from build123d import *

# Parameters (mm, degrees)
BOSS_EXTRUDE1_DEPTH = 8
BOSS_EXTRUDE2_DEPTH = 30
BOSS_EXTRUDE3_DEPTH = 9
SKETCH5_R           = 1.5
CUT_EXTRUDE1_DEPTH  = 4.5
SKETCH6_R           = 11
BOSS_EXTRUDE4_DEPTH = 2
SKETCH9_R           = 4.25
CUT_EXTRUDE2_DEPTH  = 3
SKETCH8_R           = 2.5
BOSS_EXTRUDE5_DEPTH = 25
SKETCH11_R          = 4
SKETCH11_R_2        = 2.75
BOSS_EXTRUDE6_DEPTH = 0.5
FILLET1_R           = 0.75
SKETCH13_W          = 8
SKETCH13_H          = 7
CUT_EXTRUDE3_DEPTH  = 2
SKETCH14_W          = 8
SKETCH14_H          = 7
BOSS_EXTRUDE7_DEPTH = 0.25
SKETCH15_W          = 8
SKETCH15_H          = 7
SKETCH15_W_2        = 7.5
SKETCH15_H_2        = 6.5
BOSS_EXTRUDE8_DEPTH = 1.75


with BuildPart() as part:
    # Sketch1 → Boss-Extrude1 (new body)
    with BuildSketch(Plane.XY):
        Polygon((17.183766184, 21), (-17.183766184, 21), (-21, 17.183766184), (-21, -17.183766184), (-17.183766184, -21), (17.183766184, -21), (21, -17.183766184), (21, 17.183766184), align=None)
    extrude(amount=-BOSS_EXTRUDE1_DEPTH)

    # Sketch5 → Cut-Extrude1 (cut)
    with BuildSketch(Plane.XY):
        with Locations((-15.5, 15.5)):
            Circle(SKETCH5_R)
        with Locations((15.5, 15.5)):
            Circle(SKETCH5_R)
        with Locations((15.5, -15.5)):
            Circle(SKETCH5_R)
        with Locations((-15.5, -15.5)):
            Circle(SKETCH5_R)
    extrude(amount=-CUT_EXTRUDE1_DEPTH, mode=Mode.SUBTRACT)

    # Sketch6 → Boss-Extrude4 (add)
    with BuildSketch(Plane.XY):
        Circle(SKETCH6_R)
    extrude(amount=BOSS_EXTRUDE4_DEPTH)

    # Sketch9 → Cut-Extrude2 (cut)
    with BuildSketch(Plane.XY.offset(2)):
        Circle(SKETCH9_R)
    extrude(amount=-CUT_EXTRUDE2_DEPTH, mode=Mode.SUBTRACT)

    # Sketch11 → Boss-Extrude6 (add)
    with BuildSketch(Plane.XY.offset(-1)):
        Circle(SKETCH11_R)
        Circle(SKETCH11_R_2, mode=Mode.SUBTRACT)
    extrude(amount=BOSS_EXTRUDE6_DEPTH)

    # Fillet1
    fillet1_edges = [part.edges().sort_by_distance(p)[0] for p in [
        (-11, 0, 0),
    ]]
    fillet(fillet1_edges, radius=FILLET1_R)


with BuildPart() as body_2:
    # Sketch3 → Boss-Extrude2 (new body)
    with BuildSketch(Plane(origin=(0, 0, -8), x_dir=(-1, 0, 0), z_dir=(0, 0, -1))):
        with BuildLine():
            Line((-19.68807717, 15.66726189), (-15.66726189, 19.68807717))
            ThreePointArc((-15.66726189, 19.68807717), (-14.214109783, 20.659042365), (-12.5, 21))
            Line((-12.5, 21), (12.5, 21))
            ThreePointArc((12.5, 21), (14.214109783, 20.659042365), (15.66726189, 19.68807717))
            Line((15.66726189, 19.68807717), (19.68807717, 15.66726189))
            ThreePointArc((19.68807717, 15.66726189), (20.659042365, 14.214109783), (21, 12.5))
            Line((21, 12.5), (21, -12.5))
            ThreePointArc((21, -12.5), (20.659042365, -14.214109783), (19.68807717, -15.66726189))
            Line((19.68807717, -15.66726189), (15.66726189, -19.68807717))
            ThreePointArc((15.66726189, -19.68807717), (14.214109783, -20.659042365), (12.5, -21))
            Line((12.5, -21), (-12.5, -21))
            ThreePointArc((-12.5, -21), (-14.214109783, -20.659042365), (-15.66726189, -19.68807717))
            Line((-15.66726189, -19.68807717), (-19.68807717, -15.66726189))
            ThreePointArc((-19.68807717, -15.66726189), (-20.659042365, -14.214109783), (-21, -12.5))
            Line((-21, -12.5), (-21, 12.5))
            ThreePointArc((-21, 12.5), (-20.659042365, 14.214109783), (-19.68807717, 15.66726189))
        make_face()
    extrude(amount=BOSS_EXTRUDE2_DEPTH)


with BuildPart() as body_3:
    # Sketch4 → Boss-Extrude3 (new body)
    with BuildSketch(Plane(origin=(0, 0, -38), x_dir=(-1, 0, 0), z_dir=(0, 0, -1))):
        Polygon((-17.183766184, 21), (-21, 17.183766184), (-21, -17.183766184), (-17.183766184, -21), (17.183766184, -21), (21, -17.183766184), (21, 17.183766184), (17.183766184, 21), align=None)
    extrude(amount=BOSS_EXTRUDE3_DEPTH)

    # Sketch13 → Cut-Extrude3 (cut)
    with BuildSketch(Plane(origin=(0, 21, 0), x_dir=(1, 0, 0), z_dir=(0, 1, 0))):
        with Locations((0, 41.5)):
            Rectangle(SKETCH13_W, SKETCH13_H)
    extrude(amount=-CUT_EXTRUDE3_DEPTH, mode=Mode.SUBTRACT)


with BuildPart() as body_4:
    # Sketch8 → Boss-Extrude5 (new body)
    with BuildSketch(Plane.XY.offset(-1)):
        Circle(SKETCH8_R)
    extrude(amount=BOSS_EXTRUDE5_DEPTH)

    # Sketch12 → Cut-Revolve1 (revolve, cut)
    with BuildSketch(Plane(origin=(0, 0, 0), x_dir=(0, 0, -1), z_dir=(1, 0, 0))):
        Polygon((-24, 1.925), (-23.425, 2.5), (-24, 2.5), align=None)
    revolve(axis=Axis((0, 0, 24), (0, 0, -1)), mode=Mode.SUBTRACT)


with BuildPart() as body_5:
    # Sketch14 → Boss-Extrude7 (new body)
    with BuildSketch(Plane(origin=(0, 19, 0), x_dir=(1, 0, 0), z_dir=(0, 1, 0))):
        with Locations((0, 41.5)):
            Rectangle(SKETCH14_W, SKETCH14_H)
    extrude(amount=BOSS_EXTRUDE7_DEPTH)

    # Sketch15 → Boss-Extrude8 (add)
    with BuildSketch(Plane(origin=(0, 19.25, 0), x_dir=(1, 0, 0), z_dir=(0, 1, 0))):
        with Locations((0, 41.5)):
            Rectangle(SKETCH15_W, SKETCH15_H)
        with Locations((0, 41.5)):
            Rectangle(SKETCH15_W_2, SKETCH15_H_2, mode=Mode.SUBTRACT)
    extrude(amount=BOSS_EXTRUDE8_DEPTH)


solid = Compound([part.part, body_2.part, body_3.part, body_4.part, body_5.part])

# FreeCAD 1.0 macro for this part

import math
import FreeCAD as App
import Part
import Sketcher
from FreeCAD import Vector
Q = App.Units.Quantity


def edges_at(feature, points):
    """Names of the edges that pass closest to the given points."""
    edges = feature.Shape.Edges
    near = lambda p: min(range(len(edges)), key=lambda i: edges[i].distToShape(Part.Vertex(*p))[0])
    return sorted({f"Edge{near(p) + 1}" for p in points})

doc = App.newDocument("Part")
params = doc.addObject("Spreadsheet::Sheet", "Params")
for row, (alias, value) in enumerate([
    ("pad1_length", "8 mm"),
    ("sketch2_diameter", "3 mm"),
    ("pocket1_length", "4.5 mm"),
    ("sketch3_diameter", "22 mm"),
    ("pad2_length", "2 mm"),
    ("sketch4_diameter", "8.5 mm"),
    ("pocket2_length", "3 mm"),
    ("sketch5_diameter", "8 mm"),
    ("sketch5_diameter2", "5.5 mm"),
    ("pad3_length", "0.5 mm"),
    ("fillet_radius", "0.75 mm"),
    ("sketch6_width", "25 mm"),
    ("pad4_length", "30 mm"),
    ("pad5_length", "9 mm"),
    ("sketch8_width", "8 mm"),
    ("sketch8_height", "7 mm"),
    ("pocket3_length", "2 mm"),
    ("sketch9_diameter", "5 mm"),
    ("pad6_length", "25 mm"),
    ("groove_angle", "360 deg"),
    ("sketch11_width", "8 mm"),
    ("sketch11_height", "7 mm"),
    ("pad7_length", "0.25 mm"),
    ("sketch12_width", "8 mm"),
    ("sketch12_height", "7 mm"),
    ("sketch12_width2", "7.5 mm"),
    ("sketch12_height2", "6.5 mm"),
    ("pad8_length", "1.75 mm"),
], start=1):
    params.set(f"A{row}", alias)
    params.set(f"B{row}", "=" + value)
    params.setAlias(f"B{row}", alias)

body = doc.addObject("PartDesign::Body", "Body")

# Sketch on XY plane
sketch1 = doc.addObject("Sketcher::SketchObject", "Sketch")
body.addObject(sketch1)
sketch1.AttachmentSupport = (doc.XY_Plane, [""])
sketch1.MapMode = "FlatFace"
sketch1.addGeometry(Part.LineSegment(Vector(17, 21, 0), Vector(-17, 21, 0)), False)
sketch1.addGeometry(Part.LineSegment(Vector(-17, 21, 0), Vector(-21, 17, 0)), False)
sketch1.addGeometry(Part.LineSegment(Vector(-21, 17, 0), Vector(-21, -17, 0)), False)
sketch1.addGeometry(Part.LineSegment(Vector(-21, -17, 0), Vector(-17, -21, 0)), False)
sketch1.addGeometry(Part.LineSegment(Vector(-17, -21, 0), Vector(17, -21, 0)), False)
sketch1.addGeometry(Part.LineSegment(Vector(17, -21, 0), Vector(21, -17, 0)), False)
sketch1.addGeometry(Part.LineSegment(Vector(21, -17, 0), Vector(21, 17, 0)), False)
sketch1.addGeometry(Part.LineSegment(Vector(21, 17, 0), Vector(17, 21, 0)), False)
sketch1.addConstraint(Sketcher.Constraint("Coincident", 0, 2, 1, 1))
sketch1.addConstraint(Sketcher.Constraint("Coincident", 1, 2, 2, 1))
sketch1.addConstraint(Sketcher.Constraint("Coincident", 2, 2, 3, 1))
sketch1.addConstraint(Sketcher.Constraint("Coincident", 3, 2, 4, 1))
sketch1.addConstraint(Sketcher.Constraint("Coincident", 4, 2, 5, 1))
sketch1.addConstraint(Sketcher.Constraint("Coincident", 5, 2, 6, 1))
sketch1.addConstraint(Sketcher.Constraint("Coincident", 6, 2, 7, 1))
sketch1.addConstraint(Sketcher.Constraint("Coincident", 7, 2, 0, 1))
sketch1.addConstraint(Sketcher.Constraint("Horizontal", 0))
sketch1.addConstraint(Sketcher.Constraint("Vertical", 2))
sketch1.addConstraint(Sketcher.Constraint("Horizontal", 4))
sketch1.addConstraint(Sketcher.Constraint("Vertical", 6))
sketch1.addConstraint(Sketcher.Constraint("Symmetric", 0, 2, 4, 2, -1, 1))
sketch1.addConstraint(Sketcher.Constraint("Symmetric", 1, 2, 5, 2, -1, 1))
sketch1.addConstraint(Sketcher.Constraint("Perpendicular", 1, 3))
sketch1.addConstraint(Sketcher.Constraint("Perpendicular", 5, 7))
sketch1.addConstraint(Sketcher.Constraint("Horizontal", 2, 2, 5, 2))
sketch1.addConstraint(Sketcher.Constraint("Horizontal", 1, 2, 6, 2))
sketch1.addConstraint(Sketcher.Constraint("Vertical", 0, 2, 3, 2))
sketch1.addConstraint(Sketcher.Constraint("Equal", 4, 2))
sketch1.addConstraint(Sketcher.Constraint("DistanceY", -1, 1, 0, 2, Q("21 mm")))
sketch1.addConstraint(Sketcher.Constraint("Distance", 1, Q("5.39697 mm")))
pad1 = doc.addObject("PartDesign::Pad", "Pad")
body.addObject(pad1)
pad1.Profile = sketch1
pad1.setExpression("Length", "Params.pad1_length")
pad1.Reversed = True

# Sketch on XY plane
sketch2 = doc.addObject("Sketcher::SketchObject", "Sketch001")
body.addObject(sketch2)
sketch2.AttachmentSupport = (doc.XY_Plane, [""])
sketch2.MapMode = "FlatFace"
sketch2.addGeometry(Part.Circle(Vector(-15.5, 15.5, 0), Vector(0, 0, 1), 1.5), False)
sketch2.addGeometry(Part.Circle(Vector(15.5, 15.5, 0), Vector(0, 0, 1), 1.5), False)
sketch2.addGeometry(Part.Circle(Vector(15.5, -15.5, 0), Vector(0, 0, 1), 1.5), False)
sketch2.addGeometry(Part.Circle(Vector(-15.5, -15.5, 0), Vector(0, 0, 1), 1.5), False)
sketch2.addConstraint(Sketcher.Constraint("Equal", 0, 1))
sketch2.addConstraint(Sketcher.Constraint("Equal", 1, 2))
sketch2.addConstraint(Sketcher.Constraint("Equal", 2, 3))
sketch2.addConstraint(Sketcher.Constraint("Symmetric", 0, 3, 2, 3, -1, 1))
sketch2.addConstraint(Sketcher.Constraint("Symmetric", 1, 3, 3, 3, -1, 1))
sketch2.addConstraint(Sketcher.Constraint("Symmetric", 0, 3, 1, 3, -2))
sketch2.addConstraint(Sketcher.Constraint("Diameter", 0, Q("3 mm")))
sketch2.addConstraint(Sketcher.Constraint("DistanceX", 0, 3, 1, 3, Q("31 mm")))
sketch2.addConstraint(Sketcher.Constraint("DistanceY", 2, 3, 1, 3, Q("31 mm")))
sketch2.setExpression("Constraints[6]", "Params.sketch2_diameter")
pocket1 = doc.addObject("PartDesign::Pocket", "Pocket")
body.addObject(pocket1)
pocket1.Profile = sketch2
pocket1.setExpression("Length", "Params.pocket1_length")

# Sketch on XY plane
sketch3 = doc.addObject("Sketcher::SketchObject", "Sketch002")
body.addObject(sketch3)
sketch3.AttachmentSupport = (doc.XY_Plane, [""])
sketch3.MapMode = "FlatFace"
sketch3.addGeometry(Part.Circle(Vector(0, 0, 0), Vector(0, 0, 1), 11), False)
sketch3.addConstraint(Sketcher.Constraint("Coincident", 0, 3, -1, 1))
sketch3.addConstraint(Sketcher.Constraint("Diameter", 0, Q("22 mm")))
sketch3.setExpression("Constraints[1]", "Params.sketch3_diameter")
pad2 = doc.addObject("PartDesign::Pad", "Pad001")
body.addObject(pad2)
pad2.Profile = sketch3
pad2.setExpression("Length", "Params.pad2_length")

# Sketch on XY plane
sketch4 = doc.addObject("Sketcher::SketchObject", "Sketch003")
body.addObject(sketch4)
sketch4.AttachmentSupport = (doc.XY_Plane, [""])
sketch4.MapMode = "FlatFace"
sketch4.AttachmentOffset = App.Placement(Vector(0, 0, 2), App.Rotation())
sketch4.addGeometry(Part.Circle(Vector(0, 0, 0), Vector(0, 0, 1), 4.2), False)
sketch4.addConstraint(Sketcher.Constraint("Coincident", 0, 3, -1, 1))
sketch4.addConstraint(Sketcher.Constraint("Diameter", 0, Q("8.5 mm")))
sketch4.setExpression("Constraints[1]", "Params.sketch4_diameter")
pocket2 = doc.addObject("PartDesign::Pocket", "Pocket001")
body.addObject(pocket2)
pocket2.Profile = sketch4
pocket2.setExpression("Length", "Params.pocket2_length")

# Sketch on XY plane
sketch5 = doc.addObject("Sketcher::SketchObject", "Sketch004")
body.addObject(sketch5)
sketch5.AttachmentSupport = (doc.XY_Plane, [""])
sketch5.MapMode = "FlatFace"
sketch5.AttachmentOffset = App.Placement(Vector(0, 0, -1), App.Rotation())
sketch5.addGeometry(Part.Circle(Vector(0, 0, 0), Vector(0, 0, 1), 4), False)
sketch5.addGeometry(Part.Circle(Vector(0, 0, 0), Vector(0, 0, 1), 2.8), False)
sketch5.addConstraint(Sketcher.Constraint("Coincident", 0, 3, -1, 1))
sketch5.addConstraint(Sketcher.Constraint("Coincident", 1, 3, -1, 1))
sketch5.addConstraint(Sketcher.Constraint("Diameter", 0, Q("8 mm")))
sketch5.addConstraint(Sketcher.Constraint("Diameter", 1, Q("5.5 mm")))
sketch5.setExpression("Constraints[2]", "Params.sketch5_diameter")
sketch5.setExpression("Constraints[3]", "Params.sketch5_diameter2")
pad3 = doc.addObject("PartDesign::Pad", "Pad002")
body.addObject(pad3)
pad3.Profile = sketch5
pad3.setExpression("Length", "Params.pad3_length")
doc.recompute()

fillet = doc.addObject("PartDesign::Fillet", "Fillet")
body.addObject(fillet)
fillet.Base = (pad3, edges_at(pad3, [(-11, 0, 0)]))
fillet.setExpression("Radius", "Params.fillet_radius")
body2 = doc.addObject("PartDesign::Body", "Body001")

# Sketch on XY plane
sketch6 = doc.addObject("Sketcher::SketchObject", "Sketch005")
body2.addObject(sketch6)
sketch6.AttachmentSupport = (doc.getObject("XY_Plane001"), [""])
sketch6.MapMode = "FlatFace"
sketch6.AttachmentOffset = App.Placement(Vector(0, 0, -8), App.Rotation())
sketch6.addGeometry(Part.LineSegment(Vector(15.7, 19.7, 0), Vector(19.7, 15.7, 0)), False)
sketch6.addGeometry(Part.ArcOfCircle(Part.Circle(Vector(16.5, 12.5, 0), Vector(0, 0, 1), 4.5), math.radians(0), math.radians(45)), False)
sketch6.addGeometry(Part.LineSegment(Vector(21, 12.5, 0), Vector(21, -12.5, 0)), False)
sketch6.addGeometry(Part.ArcOfCircle(Part.Circle(Vector(16.5, -12.5, 0), Vector(0, 0, 1), 4.5), math.radians(-45), math.radians(0)), False)
sketch6.addGeometry(Part.LineSegment(Vector(19.7, -15.7, 0), Vector(15.7, -19.7, 0)), False)
sketch6.addGeometry(Part.ArcOfCircle(Part.Circle(Vector(12.5, -16.5, 0), Vector(0, 0, 1), 4.5), math.radians(-90), math.radians(-45)), False)
sketch6.addGeometry(Part.LineSegment(Vector(12.5, -21, 0), Vector(-12.5, -21, 0)), False)
sketch6.addGeometry(Part.ArcOfCircle(Part.Circle(Vector(-12.5, -16.5, 0), Vector(0, 0, 1), 4.5), math.radians(-135), math.radians(-90)), False)
sketch6.addGeometry(Part.LineSegment(Vector(-15.7, -19.7, 0), Vector(-19.7, -15.7, 0)), False)
sketch6.addGeometry(Part.ArcOfCircle(Part.Circle(Vector(-16.5, -12.5, 0), Vector(0, 0, 1), 4.5), math.radians(-180), math.radians(-135)), False)
sketch6.addGeometry(Part.LineSegment(Vector(-21, -12.5, 0), Vector(-21, 12.5, 0)), False)
sketch6.addGeometry(Part.ArcOfCircle(Part.Circle(Vector(-16.5, 12.5, 0), Vector(0, 0, 1), 4.5), math.radians(135), math.radians(180)), False)
sketch6.addGeometry(Part.LineSegment(Vector(-19.7, 15.7, 0), Vector(-15.7, 19.7, 0)), False)
sketch6.addGeometry(Part.ArcOfCircle(Part.Circle(Vector(-12.5, 16.5, 0), Vector(0, 0, 1), 4.5), math.radians(90), math.radians(135)), False)
sketch6.addGeometry(Part.LineSegment(Vector(-12.5, 21, 0), Vector(12.5, 21, 0)), False)
sketch6.addGeometry(Part.ArcOfCircle(Part.Circle(Vector(12.5, 16.5, 0), Vector(0, 0, 1), 4.5), math.radians(45), math.radians(90)), False)
sketch6.addConstraint(Sketcher.Constraint("Tangent", 0, 2, 1, 2))
sketch6.addConstraint(Sketcher.Constraint("Tangent", 1, 1, 2, 1))
sketch6.addConstraint(Sketcher.Constraint("Tangent", 2, 2, 3, 2))
sketch6.addConstraint(Sketcher.Constraint("Tangent", 3, 1, 4, 1))
sketch6.addConstraint(Sketcher.Constraint("Tangent", 4, 2, 5, 2))
sketch6.addConstraint(Sketcher.Constraint("Tangent", 5, 1, 6, 1))
sketch6.addConstraint(Sketcher.Constraint("Tangent", 6, 2, 7, 2))
sketch6.addConstraint(Sketcher.Constraint("Tangent", 7, 1, 8, 1))
sketch6.addConstraint(Sketcher.Constraint("Tangent", 8, 2, 9, 2))
sketch6.addConstraint(Sketcher.Constraint("Tangent", 9, 1, 10, 1))
sketch6.addConstraint(Sketcher.Constraint("Tangent", 10, 2, 11, 2))
sketch6.addConstraint(Sketcher.Constraint("Tangent", 11, 1, 12, 1))
sketch6.addConstraint(Sketcher.Constraint("Tangent", 12, 2, 13, 2))
sketch6.addConstraint(Sketcher.Constraint("Tangent", 13, 1, 14, 1))
sketch6.addConstraint(Sketcher.Constraint("Tangent", 14, 2, 15, 2))
sketch6.addConstraint(Sketcher.Constraint("Tangent", 15, 1, 0, 1))
sketch6.addConstraint(Sketcher.Constraint("Vertical", 2))
sketch6.addConstraint(Sketcher.Constraint("Horizontal", 6))
sketch6.addConstraint(Sketcher.Constraint("Vertical", 10))
sketch6.addConstraint(Sketcher.Constraint("Horizontal", 14))
sketch6.addConstraint(Sketcher.Constraint("Equal", 1, 3))
sketch6.addConstraint(Sketcher.Constraint("Equal", 3, 5))
sketch6.addConstraint(Sketcher.Constraint("Equal", 5, 7))
sketch6.addConstraint(Sketcher.Constraint("Equal", 7, 9))
sketch6.addConstraint(Sketcher.Constraint("Equal", 9, 11))
sketch6.addConstraint(Sketcher.Constraint("Equal", 11, 13))
sketch6.addConstraint(Sketcher.Constraint("Equal", 13, 15))
sketch6.addConstraint(Sketcher.Constraint("Symmetric", 1, 3, 9, 3, -1, 1))
sketch6.addConstraint(Sketcher.Constraint("Symmetric", 5, 3, 13, 3, -1, 1))
sketch6.addConstraint(Sketcher.Constraint("Symmetric", 4, 2, 7, 1, -2))
sketch6.addConstraint(Sketcher.Constraint("Symmetric", 0, 2, 11, 1, -2))
sketch6.addConstraint(Sketcher.Constraint("Perpendicular", 0, 4))
sketch6.addConstraint(Sketcher.Constraint("Equal", 14, 2))
sketch6.addConstraint(Sketcher.Constraint("DistanceX", 6, 2, 6, 1, Q("25 mm")))
sketch6.addConstraint(Sketcher.Constraint("DistanceX", -1, 1, 1, 1, Q("21 mm")))
sketch6.addConstraint(Sketcher.Constraint("Radius", 1, Q("4.479185 mm")))
sketch6.setExpression("Constraints[33]", "Params.sketch6_width")
pad4 = doc.addObject("PartDesign::Pad", "Pad003")
body2.addObject(pad4)
pad4.Profile = sketch6
pad4.setExpression("Length", "Params.pad4_length")
pad4.Reversed = True
body3 = doc.addObject("PartDesign::Body", "Body002")

# Sketch on XY plane
sketch7 = doc.addObject("Sketcher::SketchObject", "Sketch006")
body3.addObject(sketch7)
sketch7.AttachmentSupport = (doc.getObject("XY_Plane002"), [""])
sketch7.MapMode = "FlatFace"
sketch7.AttachmentOffset = App.Placement(Vector(0, 0, -38), App.Rotation())
sketch7.addGeometry(Part.LineSegment(Vector(17, 21, 0), Vector(21, 17, 0)), False)
sketch7.addGeometry(Part.LineSegment(Vector(21, 17, 0), Vector(21, -17, 0)), False)
sketch7.addGeometry(Part.LineSegment(Vector(21, -17, 0), Vector(17, -21, 0)), False)
sketch7.addGeometry(Part.LineSegment(Vector(17, -21, 0), Vector(-17, -21, 0)), False)
sketch7.addGeometry(Part.LineSegment(Vector(-17, -21, 0), Vector(-21, -17, 0)), False)
sketch7.addGeometry(Part.LineSegment(Vector(-21, -17, 0), Vector(-21, 17, 0)), False)
sketch7.addGeometry(Part.LineSegment(Vector(-21, 17, 0), Vector(-17, 21, 0)), False)
sketch7.addGeometry(Part.LineSegment(Vector(-17, 21, 0), Vector(17, 21, 0)), False)
sketch7.addConstraint(Sketcher.Constraint("Coincident", 0, 2, 1, 1))
sketch7.addConstraint(Sketcher.Constraint("Coincident", 1, 2, 2, 1))
sketch7.addConstraint(Sketcher.Constraint("Coincident", 2, 2, 3, 1))
sketch7.addConstraint(Sketcher.Constraint("Coincident", 3, 2, 4, 1))
sketch7.addConstraint(Sketcher.Constraint("Coincident", 4, 2, 5, 1))
sketch7.addConstraint(Sketcher.Constraint("Coincident", 5, 2, 6, 1))
sketch7.addConstraint(Sketcher.Constraint("Coincident", 6, 2, 7, 1))
sketch7.addConstraint(Sketcher.Constraint("Coincident", 7, 2, 0, 1))
sketch7.addConstraint(Sketcher.Constraint("Vertical", 1))
sketch7.addConstraint(Sketcher.Constraint("Horizontal", 3))
sketch7.addConstraint(Sketcher.Constraint("Vertical", 5))
sketch7.addConstraint(Sketcher.Constraint("Horizontal", 7))
sketch7.addConstraint(Sketcher.Constraint("Symmetric", 0, 2, 4, 2, -1, 1))
sketch7.addConstraint(Sketcher.Constraint("Symmetric", 2, 2, 6, 2, -1, 1))
sketch7.addConstraint(Sketcher.Constraint("Perpendicular", 0, 2))
sketch7.addConstraint(Sketcher.Constraint("Perpendicular", 2, 4))
sketch7.addConstraint(Sketcher.Constraint("Perpendicular", 4, 6))
sketch7.addConstraint(Sketcher.Constraint("Horizontal", 1, 2, 4, 2))
sketch7.addConstraint(Sketcher.Constraint("Vertical", 3, 2, 6, 2))
sketch7.addConstraint(Sketcher.Constraint("Equal", 7, 1))
sketch7.addConstraint(Sketcher.Constraint("DistanceX", -1, 1, 0, 2, Q("21 mm")))
sketch7.addConstraint(Sketcher.Constraint("Distance", 0, Q("5.39697 mm")))
pad5 = doc.addObject("PartDesign::Pad", "Pad004")
body3.addObject(pad5)
pad5.Profile = sketch7
pad5.setExpression("Length", "Params.pad5_length")
pad5.Reversed = True

# Sketch on XZ plane
sketch8 = doc.addObject("Sketcher::SketchObject", "Sketch007")
body3.addObject(sketch8)
sketch8.AttachmentSupport = (doc.getObject("XZ_Plane002"), [""])
sketch8.MapMode = "FlatFace"
sketch8.AttachmentOffset = App.Placement(Vector(0, 0, -21), App.Rotation())
sketch8.addGeometry(Part.LineSegment(Vector(-4, -45, 0), Vector(-4, -38, 0)), False)
sketch8.addGeometry(Part.LineSegment(Vector(-4, -38, 0), Vector(4, -38, 0)), False)
sketch8.addGeometry(Part.LineSegment(Vector(4, -38, 0), Vector(4, -45, 0)), False)
sketch8.addGeometry(Part.LineSegment(Vector(4, -45, 0), Vector(-4, -45, 0)), False)
sketch8.addConstraint(Sketcher.Constraint("Coincident", 0, 2, 1, 1))
sketch8.addConstraint(Sketcher.Constraint("Coincident", 1, 2, 2, 1))
sketch8.addConstraint(Sketcher.Constraint("Coincident", 2, 2, 3, 1))
sketch8.addConstraint(Sketcher.Constraint("Coincident", 3, 2, 0, 1))
sketch8.addConstraint(Sketcher.Constraint("Vertical", 0))
sketch8.addConstraint(Sketcher.Constraint("Horizontal", 1))
sketch8.addConstraint(Sketcher.Constraint("Vertical", 2))
sketch8.addConstraint(Sketcher.Constraint("Horizontal", 3))
sketch8.addConstraint(Sketcher.Constraint("DistanceX", 1, 1, 1, 2, Q("8 mm")))
sketch8.addConstraint(Sketcher.Constraint("DistanceY", 0, 1, 0, 2, Q("7 mm")))
sketch8.addConstraint(Sketcher.Constraint("DistanceX", 0, 2, -1, 1, Q("4 mm")))
sketch8.addConstraint(Sketcher.Constraint("DistanceY", 0, 2, -1, 1, Q("38 mm")))
sketch8.setExpression("Constraints[8]", "Params.sketch8_width")
sketch8.setExpression("Constraints[9]", "Params.sketch8_height")
pocket3 = doc.addObject("PartDesign::Pocket", "Pocket002")
body3.addObject(pocket3)
pocket3.Profile = sketch8
pocket3.setExpression("Length", "Params.pocket3_length")
pocket3.Reversed = True
body4 = doc.addObject("PartDesign::Body", "Body003")

# Sketch on XY plane
sketch9 = doc.addObject("Sketcher::SketchObject", "Sketch008")
body4.addObject(sketch9)
sketch9.AttachmentSupport = (doc.getObject("XY_Plane003"), [""])
sketch9.MapMode = "FlatFace"
sketch9.AttachmentOffset = App.Placement(Vector(0, 0, -1), App.Rotation())
sketch9.addGeometry(Part.Circle(Vector(0, 0, 0), Vector(0, 0, 1), 2.5), False)
sketch9.addConstraint(Sketcher.Constraint("Coincident", 0, 3, -1, 1))
sketch9.addConstraint(Sketcher.Constraint("Diameter", 0, Q("5 mm")))
sketch9.setExpression("Constraints[1]", "Params.sketch9_diameter")
pad6 = doc.addObject("PartDesign::Pad", "Pad005")
body4.addObject(pad6)
pad6.Profile = sketch9
pad6.setExpression("Length", "Params.pad6_length")

# Sketch on YZ plane
sketch10 = doc.addObject("Sketcher::SketchObject", "Sketch009")
body4.addObject(sketch10)
sketch10.AttachmentSupport = (doc.getObject("YZ_Plane003"), [""])
sketch10.MapMode = "FlatFace"
sketch10.addGeometry(Part.LineSegment(Vector(1.9, 24, 0), Vector(2.5, 23.4, 0)), False)
sketch10.addGeometry(Part.LineSegment(Vector(2.5, 23.4, 0), Vector(2.5, 24, 0)), False)
sketch10.addGeometry(Part.LineSegment(Vector(2.5, 24, 0), Vector(1.9, 24, 0)), False)
sketch10.addConstraint(Sketcher.Constraint("Coincident", 0, 2, 1, 1))
sketch10.addConstraint(Sketcher.Constraint("Coincident", 1, 2, 2, 1))
sketch10.addConstraint(Sketcher.Constraint("Coincident", 2, 2, 0, 1))
sketch10.addConstraint(Sketcher.Constraint("Vertical", 1))
sketch10.addConstraint(Sketcher.Constraint("Horizontal", 2))
sketch10.addConstraint(Sketcher.Constraint("Equal", 2, 1))
sketch10.addConstraint(Sketcher.Constraint("DistanceY", -1, 1, 1, 2, Q("24 mm")))
sketch10.addConstraint(Sketcher.Constraint("DistanceX", -1, 1, 0, 2, Q("2.5 mm")))
sketch10.addConstraint(Sketcher.Constraint("DistanceX", 2, 2, 2, 1, Q("0.575 mm")))
groove = doc.addObject("PartDesign::Groove", "Groove")
body4.addObject(groove)
groove.Profile = sketch10
groove.ReferenceAxis = (sketch10, ["V_Axis"])
groove.setExpression("Angle", "Params.groove_angle")
body5 = doc.addObject("PartDesign::Body", "Body004")

# Sketch on XZ plane
sketch11 = doc.addObject("Sketcher::SketchObject", "Sketch010")
body5.addObject(sketch11)
sketch11.AttachmentSupport = (doc.getObject("XZ_Plane004"), [""])
sketch11.MapMode = "FlatFace"
sketch11.AttachmentOffset = App.Placement(Vector(0, 0, -19), App.Rotation())
sketch11.addGeometry(Part.LineSegment(Vector(-4, -45, 0), Vector(-4, -38, 0)), False)
sketch11.addGeometry(Part.LineSegment(Vector(-4, -38, 0), Vector(4, -38, 0)), False)
sketch11.addGeometry(Part.LineSegment(Vector(4, -38, 0), Vector(4, -45, 0)), False)
sketch11.addGeometry(Part.LineSegment(Vector(4, -45, 0), Vector(-4, -45, 0)), False)
sketch11.addConstraint(Sketcher.Constraint("Coincident", 0, 2, 1, 1))
sketch11.addConstraint(Sketcher.Constraint("Coincident", 1, 2, 2, 1))
sketch11.addConstraint(Sketcher.Constraint("Coincident", 2, 2, 3, 1))
sketch11.addConstraint(Sketcher.Constraint("Coincident", 3, 2, 0, 1))
sketch11.addConstraint(Sketcher.Constraint("Vertical", 0))
sketch11.addConstraint(Sketcher.Constraint("Horizontal", 1))
sketch11.addConstraint(Sketcher.Constraint("Vertical", 2))
sketch11.addConstraint(Sketcher.Constraint("Horizontal", 3))
sketch11.addConstraint(Sketcher.Constraint("DistanceX", 1, 1, 1, 2, Q("8 mm")))
sketch11.addConstraint(Sketcher.Constraint("DistanceY", 0, 1, 0, 2, Q("7 mm")))
sketch11.addConstraint(Sketcher.Constraint("DistanceX", 0, 2, -1, 1, Q("4 mm")))
sketch11.addConstraint(Sketcher.Constraint("DistanceY", 0, 2, -1, 1, Q("38 mm")))
sketch11.setExpression("Constraints[8]", "Params.sketch11_width")
sketch11.setExpression("Constraints[9]", "Params.sketch11_height")
pad7 = doc.addObject("PartDesign::Pad", "Pad006")
body5.addObject(pad7)
pad7.Profile = sketch11
pad7.setExpression("Length", "Params.pad7_length")
pad7.Reversed = True

# Sketch on XZ plane
sketch12 = doc.addObject("Sketcher::SketchObject", "Sketch011")
body5.addObject(sketch12)
sketch12.AttachmentSupport = (doc.getObject("XZ_Plane004"), [""])
sketch12.MapMode = "FlatFace"
sketch12.AttachmentOffset = App.Placement(Vector(0, 0, -19.25), App.Rotation())
sketch12.addGeometry(Part.LineSegment(Vector(-4, -45, 0), Vector(-4, -38, 0)), False)
sketch12.addGeometry(Part.LineSegment(Vector(-4, -38, 0), Vector(4, -38, 0)), False)
sketch12.addGeometry(Part.LineSegment(Vector(4, -38, 0), Vector(4, -45, 0)), False)
sketch12.addGeometry(Part.LineSegment(Vector(4, -45, 0), Vector(-4, -45, 0)), False)
sketch12.addGeometry(Part.LineSegment(Vector(4, -38, 0), Vector(-4, -38, 0)), False)
sketch12.addGeometry(Part.LineSegment(Vector(-4, -38, 0), Vector(-4, -45, 0)), False)
sketch12.addGeometry(Part.LineSegment(Vector(-4, -45, 0), Vector(4, -45, 0)), False)
sketch12.addGeometry(Part.LineSegment(Vector(4, -45, 0), Vector(4, -38, 0)), False)
sketch12.addConstraint(Sketcher.Constraint("Coincident", 0, 2, 1, 1))
sketch12.addConstraint(Sketcher.Constraint("Coincident", 1, 2, 2, 1))
sketch12.addConstraint(Sketcher.Constraint("Coincident", 2, 2, 3, 1))
sketch12.addConstraint(Sketcher.Constraint("Coincident", 3, 2, 0, 1))
sketch12.addConstraint(Sketcher.Constraint("Coincident", 4, 2, 5, 1))
sketch12.addConstraint(Sketcher.Constraint("Coincident", 5, 2, 6, 1))
sketch12.addConstraint(Sketcher.Constraint("Coincident", 6, 2, 7, 1))
sketch12.addConstraint(Sketcher.Constraint("Coincident", 7, 2, 4, 1))
sketch12.addConstraint(Sketcher.Constraint("Vertical", 0))
sketch12.addConstraint(Sketcher.Constraint("Horizontal", 1))
sketch12.addConstraint(Sketcher.Constraint("Vertical", 2))
sketch12.addConstraint(Sketcher.Constraint("Horizontal", 3))
sketch12.addConstraint(Sketcher.Constraint("Horizontal", 4))
sketch12.addConstraint(Sketcher.Constraint("Vertical", 5))
sketch12.addConstraint(Sketcher.Constraint("Horizontal", 6))
sketch12.addConstraint(Sketcher.Constraint("Vertical", 7))
sketch12.addConstraint(Sketcher.Constraint("DistanceX", 1, 1, 1, 2, Q("8 mm")))
sketch12.addConstraint(Sketcher.Constraint("DistanceY", 0, 1, 0, 2, Q("7 mm")))
sketch12.addConstraint(Sketcher.Constraint("DistanceX", 4, 2, 4, 1, Q("7.5 mm")))
sketch12.addConstraint(Sketcher.Constraint("DistanceY", 5, 2, 5, 1, Q("6.5 mm")))
sketch12.addConstraint(Sketcher.Constraint("DistanceX", 0, 2, -1, 1, Q("4 mm")))
sketch12.addConstraint(Sketcher.Constraint("DistanceY", 0, 2, -1, 1, Q("38 mm")))
sketch12.addConstraint(Sketcher.Constraint("DistanceX", 4, 2, -1, 1, Q("3.75 mm")))
sketch12.addConstraint(Sketcher.Constraint("DistanceY", 4, 2, -1, 1, Q("38.25 mm")))
sketch12.setExpression("Constraints[16]", "Params.sketch12_width")
sketch12.setExpression("Constraints[17]", "Params.sketch12_height")
sketch12.setExpression("Constraints[18]", "Params.sketch12_width2")
sketch12.setExpression("Constraints[19]", "Params.sketch12_height2")
pad8 = doc.addObject("PartDesign::Pad", "Pad007")
body5.addObject(pad8)
pad8.Profile = sketch12
pad8.setExpression("Length", "Params.pad8_length")
pad8.Reversed = True

doc.recompute()
